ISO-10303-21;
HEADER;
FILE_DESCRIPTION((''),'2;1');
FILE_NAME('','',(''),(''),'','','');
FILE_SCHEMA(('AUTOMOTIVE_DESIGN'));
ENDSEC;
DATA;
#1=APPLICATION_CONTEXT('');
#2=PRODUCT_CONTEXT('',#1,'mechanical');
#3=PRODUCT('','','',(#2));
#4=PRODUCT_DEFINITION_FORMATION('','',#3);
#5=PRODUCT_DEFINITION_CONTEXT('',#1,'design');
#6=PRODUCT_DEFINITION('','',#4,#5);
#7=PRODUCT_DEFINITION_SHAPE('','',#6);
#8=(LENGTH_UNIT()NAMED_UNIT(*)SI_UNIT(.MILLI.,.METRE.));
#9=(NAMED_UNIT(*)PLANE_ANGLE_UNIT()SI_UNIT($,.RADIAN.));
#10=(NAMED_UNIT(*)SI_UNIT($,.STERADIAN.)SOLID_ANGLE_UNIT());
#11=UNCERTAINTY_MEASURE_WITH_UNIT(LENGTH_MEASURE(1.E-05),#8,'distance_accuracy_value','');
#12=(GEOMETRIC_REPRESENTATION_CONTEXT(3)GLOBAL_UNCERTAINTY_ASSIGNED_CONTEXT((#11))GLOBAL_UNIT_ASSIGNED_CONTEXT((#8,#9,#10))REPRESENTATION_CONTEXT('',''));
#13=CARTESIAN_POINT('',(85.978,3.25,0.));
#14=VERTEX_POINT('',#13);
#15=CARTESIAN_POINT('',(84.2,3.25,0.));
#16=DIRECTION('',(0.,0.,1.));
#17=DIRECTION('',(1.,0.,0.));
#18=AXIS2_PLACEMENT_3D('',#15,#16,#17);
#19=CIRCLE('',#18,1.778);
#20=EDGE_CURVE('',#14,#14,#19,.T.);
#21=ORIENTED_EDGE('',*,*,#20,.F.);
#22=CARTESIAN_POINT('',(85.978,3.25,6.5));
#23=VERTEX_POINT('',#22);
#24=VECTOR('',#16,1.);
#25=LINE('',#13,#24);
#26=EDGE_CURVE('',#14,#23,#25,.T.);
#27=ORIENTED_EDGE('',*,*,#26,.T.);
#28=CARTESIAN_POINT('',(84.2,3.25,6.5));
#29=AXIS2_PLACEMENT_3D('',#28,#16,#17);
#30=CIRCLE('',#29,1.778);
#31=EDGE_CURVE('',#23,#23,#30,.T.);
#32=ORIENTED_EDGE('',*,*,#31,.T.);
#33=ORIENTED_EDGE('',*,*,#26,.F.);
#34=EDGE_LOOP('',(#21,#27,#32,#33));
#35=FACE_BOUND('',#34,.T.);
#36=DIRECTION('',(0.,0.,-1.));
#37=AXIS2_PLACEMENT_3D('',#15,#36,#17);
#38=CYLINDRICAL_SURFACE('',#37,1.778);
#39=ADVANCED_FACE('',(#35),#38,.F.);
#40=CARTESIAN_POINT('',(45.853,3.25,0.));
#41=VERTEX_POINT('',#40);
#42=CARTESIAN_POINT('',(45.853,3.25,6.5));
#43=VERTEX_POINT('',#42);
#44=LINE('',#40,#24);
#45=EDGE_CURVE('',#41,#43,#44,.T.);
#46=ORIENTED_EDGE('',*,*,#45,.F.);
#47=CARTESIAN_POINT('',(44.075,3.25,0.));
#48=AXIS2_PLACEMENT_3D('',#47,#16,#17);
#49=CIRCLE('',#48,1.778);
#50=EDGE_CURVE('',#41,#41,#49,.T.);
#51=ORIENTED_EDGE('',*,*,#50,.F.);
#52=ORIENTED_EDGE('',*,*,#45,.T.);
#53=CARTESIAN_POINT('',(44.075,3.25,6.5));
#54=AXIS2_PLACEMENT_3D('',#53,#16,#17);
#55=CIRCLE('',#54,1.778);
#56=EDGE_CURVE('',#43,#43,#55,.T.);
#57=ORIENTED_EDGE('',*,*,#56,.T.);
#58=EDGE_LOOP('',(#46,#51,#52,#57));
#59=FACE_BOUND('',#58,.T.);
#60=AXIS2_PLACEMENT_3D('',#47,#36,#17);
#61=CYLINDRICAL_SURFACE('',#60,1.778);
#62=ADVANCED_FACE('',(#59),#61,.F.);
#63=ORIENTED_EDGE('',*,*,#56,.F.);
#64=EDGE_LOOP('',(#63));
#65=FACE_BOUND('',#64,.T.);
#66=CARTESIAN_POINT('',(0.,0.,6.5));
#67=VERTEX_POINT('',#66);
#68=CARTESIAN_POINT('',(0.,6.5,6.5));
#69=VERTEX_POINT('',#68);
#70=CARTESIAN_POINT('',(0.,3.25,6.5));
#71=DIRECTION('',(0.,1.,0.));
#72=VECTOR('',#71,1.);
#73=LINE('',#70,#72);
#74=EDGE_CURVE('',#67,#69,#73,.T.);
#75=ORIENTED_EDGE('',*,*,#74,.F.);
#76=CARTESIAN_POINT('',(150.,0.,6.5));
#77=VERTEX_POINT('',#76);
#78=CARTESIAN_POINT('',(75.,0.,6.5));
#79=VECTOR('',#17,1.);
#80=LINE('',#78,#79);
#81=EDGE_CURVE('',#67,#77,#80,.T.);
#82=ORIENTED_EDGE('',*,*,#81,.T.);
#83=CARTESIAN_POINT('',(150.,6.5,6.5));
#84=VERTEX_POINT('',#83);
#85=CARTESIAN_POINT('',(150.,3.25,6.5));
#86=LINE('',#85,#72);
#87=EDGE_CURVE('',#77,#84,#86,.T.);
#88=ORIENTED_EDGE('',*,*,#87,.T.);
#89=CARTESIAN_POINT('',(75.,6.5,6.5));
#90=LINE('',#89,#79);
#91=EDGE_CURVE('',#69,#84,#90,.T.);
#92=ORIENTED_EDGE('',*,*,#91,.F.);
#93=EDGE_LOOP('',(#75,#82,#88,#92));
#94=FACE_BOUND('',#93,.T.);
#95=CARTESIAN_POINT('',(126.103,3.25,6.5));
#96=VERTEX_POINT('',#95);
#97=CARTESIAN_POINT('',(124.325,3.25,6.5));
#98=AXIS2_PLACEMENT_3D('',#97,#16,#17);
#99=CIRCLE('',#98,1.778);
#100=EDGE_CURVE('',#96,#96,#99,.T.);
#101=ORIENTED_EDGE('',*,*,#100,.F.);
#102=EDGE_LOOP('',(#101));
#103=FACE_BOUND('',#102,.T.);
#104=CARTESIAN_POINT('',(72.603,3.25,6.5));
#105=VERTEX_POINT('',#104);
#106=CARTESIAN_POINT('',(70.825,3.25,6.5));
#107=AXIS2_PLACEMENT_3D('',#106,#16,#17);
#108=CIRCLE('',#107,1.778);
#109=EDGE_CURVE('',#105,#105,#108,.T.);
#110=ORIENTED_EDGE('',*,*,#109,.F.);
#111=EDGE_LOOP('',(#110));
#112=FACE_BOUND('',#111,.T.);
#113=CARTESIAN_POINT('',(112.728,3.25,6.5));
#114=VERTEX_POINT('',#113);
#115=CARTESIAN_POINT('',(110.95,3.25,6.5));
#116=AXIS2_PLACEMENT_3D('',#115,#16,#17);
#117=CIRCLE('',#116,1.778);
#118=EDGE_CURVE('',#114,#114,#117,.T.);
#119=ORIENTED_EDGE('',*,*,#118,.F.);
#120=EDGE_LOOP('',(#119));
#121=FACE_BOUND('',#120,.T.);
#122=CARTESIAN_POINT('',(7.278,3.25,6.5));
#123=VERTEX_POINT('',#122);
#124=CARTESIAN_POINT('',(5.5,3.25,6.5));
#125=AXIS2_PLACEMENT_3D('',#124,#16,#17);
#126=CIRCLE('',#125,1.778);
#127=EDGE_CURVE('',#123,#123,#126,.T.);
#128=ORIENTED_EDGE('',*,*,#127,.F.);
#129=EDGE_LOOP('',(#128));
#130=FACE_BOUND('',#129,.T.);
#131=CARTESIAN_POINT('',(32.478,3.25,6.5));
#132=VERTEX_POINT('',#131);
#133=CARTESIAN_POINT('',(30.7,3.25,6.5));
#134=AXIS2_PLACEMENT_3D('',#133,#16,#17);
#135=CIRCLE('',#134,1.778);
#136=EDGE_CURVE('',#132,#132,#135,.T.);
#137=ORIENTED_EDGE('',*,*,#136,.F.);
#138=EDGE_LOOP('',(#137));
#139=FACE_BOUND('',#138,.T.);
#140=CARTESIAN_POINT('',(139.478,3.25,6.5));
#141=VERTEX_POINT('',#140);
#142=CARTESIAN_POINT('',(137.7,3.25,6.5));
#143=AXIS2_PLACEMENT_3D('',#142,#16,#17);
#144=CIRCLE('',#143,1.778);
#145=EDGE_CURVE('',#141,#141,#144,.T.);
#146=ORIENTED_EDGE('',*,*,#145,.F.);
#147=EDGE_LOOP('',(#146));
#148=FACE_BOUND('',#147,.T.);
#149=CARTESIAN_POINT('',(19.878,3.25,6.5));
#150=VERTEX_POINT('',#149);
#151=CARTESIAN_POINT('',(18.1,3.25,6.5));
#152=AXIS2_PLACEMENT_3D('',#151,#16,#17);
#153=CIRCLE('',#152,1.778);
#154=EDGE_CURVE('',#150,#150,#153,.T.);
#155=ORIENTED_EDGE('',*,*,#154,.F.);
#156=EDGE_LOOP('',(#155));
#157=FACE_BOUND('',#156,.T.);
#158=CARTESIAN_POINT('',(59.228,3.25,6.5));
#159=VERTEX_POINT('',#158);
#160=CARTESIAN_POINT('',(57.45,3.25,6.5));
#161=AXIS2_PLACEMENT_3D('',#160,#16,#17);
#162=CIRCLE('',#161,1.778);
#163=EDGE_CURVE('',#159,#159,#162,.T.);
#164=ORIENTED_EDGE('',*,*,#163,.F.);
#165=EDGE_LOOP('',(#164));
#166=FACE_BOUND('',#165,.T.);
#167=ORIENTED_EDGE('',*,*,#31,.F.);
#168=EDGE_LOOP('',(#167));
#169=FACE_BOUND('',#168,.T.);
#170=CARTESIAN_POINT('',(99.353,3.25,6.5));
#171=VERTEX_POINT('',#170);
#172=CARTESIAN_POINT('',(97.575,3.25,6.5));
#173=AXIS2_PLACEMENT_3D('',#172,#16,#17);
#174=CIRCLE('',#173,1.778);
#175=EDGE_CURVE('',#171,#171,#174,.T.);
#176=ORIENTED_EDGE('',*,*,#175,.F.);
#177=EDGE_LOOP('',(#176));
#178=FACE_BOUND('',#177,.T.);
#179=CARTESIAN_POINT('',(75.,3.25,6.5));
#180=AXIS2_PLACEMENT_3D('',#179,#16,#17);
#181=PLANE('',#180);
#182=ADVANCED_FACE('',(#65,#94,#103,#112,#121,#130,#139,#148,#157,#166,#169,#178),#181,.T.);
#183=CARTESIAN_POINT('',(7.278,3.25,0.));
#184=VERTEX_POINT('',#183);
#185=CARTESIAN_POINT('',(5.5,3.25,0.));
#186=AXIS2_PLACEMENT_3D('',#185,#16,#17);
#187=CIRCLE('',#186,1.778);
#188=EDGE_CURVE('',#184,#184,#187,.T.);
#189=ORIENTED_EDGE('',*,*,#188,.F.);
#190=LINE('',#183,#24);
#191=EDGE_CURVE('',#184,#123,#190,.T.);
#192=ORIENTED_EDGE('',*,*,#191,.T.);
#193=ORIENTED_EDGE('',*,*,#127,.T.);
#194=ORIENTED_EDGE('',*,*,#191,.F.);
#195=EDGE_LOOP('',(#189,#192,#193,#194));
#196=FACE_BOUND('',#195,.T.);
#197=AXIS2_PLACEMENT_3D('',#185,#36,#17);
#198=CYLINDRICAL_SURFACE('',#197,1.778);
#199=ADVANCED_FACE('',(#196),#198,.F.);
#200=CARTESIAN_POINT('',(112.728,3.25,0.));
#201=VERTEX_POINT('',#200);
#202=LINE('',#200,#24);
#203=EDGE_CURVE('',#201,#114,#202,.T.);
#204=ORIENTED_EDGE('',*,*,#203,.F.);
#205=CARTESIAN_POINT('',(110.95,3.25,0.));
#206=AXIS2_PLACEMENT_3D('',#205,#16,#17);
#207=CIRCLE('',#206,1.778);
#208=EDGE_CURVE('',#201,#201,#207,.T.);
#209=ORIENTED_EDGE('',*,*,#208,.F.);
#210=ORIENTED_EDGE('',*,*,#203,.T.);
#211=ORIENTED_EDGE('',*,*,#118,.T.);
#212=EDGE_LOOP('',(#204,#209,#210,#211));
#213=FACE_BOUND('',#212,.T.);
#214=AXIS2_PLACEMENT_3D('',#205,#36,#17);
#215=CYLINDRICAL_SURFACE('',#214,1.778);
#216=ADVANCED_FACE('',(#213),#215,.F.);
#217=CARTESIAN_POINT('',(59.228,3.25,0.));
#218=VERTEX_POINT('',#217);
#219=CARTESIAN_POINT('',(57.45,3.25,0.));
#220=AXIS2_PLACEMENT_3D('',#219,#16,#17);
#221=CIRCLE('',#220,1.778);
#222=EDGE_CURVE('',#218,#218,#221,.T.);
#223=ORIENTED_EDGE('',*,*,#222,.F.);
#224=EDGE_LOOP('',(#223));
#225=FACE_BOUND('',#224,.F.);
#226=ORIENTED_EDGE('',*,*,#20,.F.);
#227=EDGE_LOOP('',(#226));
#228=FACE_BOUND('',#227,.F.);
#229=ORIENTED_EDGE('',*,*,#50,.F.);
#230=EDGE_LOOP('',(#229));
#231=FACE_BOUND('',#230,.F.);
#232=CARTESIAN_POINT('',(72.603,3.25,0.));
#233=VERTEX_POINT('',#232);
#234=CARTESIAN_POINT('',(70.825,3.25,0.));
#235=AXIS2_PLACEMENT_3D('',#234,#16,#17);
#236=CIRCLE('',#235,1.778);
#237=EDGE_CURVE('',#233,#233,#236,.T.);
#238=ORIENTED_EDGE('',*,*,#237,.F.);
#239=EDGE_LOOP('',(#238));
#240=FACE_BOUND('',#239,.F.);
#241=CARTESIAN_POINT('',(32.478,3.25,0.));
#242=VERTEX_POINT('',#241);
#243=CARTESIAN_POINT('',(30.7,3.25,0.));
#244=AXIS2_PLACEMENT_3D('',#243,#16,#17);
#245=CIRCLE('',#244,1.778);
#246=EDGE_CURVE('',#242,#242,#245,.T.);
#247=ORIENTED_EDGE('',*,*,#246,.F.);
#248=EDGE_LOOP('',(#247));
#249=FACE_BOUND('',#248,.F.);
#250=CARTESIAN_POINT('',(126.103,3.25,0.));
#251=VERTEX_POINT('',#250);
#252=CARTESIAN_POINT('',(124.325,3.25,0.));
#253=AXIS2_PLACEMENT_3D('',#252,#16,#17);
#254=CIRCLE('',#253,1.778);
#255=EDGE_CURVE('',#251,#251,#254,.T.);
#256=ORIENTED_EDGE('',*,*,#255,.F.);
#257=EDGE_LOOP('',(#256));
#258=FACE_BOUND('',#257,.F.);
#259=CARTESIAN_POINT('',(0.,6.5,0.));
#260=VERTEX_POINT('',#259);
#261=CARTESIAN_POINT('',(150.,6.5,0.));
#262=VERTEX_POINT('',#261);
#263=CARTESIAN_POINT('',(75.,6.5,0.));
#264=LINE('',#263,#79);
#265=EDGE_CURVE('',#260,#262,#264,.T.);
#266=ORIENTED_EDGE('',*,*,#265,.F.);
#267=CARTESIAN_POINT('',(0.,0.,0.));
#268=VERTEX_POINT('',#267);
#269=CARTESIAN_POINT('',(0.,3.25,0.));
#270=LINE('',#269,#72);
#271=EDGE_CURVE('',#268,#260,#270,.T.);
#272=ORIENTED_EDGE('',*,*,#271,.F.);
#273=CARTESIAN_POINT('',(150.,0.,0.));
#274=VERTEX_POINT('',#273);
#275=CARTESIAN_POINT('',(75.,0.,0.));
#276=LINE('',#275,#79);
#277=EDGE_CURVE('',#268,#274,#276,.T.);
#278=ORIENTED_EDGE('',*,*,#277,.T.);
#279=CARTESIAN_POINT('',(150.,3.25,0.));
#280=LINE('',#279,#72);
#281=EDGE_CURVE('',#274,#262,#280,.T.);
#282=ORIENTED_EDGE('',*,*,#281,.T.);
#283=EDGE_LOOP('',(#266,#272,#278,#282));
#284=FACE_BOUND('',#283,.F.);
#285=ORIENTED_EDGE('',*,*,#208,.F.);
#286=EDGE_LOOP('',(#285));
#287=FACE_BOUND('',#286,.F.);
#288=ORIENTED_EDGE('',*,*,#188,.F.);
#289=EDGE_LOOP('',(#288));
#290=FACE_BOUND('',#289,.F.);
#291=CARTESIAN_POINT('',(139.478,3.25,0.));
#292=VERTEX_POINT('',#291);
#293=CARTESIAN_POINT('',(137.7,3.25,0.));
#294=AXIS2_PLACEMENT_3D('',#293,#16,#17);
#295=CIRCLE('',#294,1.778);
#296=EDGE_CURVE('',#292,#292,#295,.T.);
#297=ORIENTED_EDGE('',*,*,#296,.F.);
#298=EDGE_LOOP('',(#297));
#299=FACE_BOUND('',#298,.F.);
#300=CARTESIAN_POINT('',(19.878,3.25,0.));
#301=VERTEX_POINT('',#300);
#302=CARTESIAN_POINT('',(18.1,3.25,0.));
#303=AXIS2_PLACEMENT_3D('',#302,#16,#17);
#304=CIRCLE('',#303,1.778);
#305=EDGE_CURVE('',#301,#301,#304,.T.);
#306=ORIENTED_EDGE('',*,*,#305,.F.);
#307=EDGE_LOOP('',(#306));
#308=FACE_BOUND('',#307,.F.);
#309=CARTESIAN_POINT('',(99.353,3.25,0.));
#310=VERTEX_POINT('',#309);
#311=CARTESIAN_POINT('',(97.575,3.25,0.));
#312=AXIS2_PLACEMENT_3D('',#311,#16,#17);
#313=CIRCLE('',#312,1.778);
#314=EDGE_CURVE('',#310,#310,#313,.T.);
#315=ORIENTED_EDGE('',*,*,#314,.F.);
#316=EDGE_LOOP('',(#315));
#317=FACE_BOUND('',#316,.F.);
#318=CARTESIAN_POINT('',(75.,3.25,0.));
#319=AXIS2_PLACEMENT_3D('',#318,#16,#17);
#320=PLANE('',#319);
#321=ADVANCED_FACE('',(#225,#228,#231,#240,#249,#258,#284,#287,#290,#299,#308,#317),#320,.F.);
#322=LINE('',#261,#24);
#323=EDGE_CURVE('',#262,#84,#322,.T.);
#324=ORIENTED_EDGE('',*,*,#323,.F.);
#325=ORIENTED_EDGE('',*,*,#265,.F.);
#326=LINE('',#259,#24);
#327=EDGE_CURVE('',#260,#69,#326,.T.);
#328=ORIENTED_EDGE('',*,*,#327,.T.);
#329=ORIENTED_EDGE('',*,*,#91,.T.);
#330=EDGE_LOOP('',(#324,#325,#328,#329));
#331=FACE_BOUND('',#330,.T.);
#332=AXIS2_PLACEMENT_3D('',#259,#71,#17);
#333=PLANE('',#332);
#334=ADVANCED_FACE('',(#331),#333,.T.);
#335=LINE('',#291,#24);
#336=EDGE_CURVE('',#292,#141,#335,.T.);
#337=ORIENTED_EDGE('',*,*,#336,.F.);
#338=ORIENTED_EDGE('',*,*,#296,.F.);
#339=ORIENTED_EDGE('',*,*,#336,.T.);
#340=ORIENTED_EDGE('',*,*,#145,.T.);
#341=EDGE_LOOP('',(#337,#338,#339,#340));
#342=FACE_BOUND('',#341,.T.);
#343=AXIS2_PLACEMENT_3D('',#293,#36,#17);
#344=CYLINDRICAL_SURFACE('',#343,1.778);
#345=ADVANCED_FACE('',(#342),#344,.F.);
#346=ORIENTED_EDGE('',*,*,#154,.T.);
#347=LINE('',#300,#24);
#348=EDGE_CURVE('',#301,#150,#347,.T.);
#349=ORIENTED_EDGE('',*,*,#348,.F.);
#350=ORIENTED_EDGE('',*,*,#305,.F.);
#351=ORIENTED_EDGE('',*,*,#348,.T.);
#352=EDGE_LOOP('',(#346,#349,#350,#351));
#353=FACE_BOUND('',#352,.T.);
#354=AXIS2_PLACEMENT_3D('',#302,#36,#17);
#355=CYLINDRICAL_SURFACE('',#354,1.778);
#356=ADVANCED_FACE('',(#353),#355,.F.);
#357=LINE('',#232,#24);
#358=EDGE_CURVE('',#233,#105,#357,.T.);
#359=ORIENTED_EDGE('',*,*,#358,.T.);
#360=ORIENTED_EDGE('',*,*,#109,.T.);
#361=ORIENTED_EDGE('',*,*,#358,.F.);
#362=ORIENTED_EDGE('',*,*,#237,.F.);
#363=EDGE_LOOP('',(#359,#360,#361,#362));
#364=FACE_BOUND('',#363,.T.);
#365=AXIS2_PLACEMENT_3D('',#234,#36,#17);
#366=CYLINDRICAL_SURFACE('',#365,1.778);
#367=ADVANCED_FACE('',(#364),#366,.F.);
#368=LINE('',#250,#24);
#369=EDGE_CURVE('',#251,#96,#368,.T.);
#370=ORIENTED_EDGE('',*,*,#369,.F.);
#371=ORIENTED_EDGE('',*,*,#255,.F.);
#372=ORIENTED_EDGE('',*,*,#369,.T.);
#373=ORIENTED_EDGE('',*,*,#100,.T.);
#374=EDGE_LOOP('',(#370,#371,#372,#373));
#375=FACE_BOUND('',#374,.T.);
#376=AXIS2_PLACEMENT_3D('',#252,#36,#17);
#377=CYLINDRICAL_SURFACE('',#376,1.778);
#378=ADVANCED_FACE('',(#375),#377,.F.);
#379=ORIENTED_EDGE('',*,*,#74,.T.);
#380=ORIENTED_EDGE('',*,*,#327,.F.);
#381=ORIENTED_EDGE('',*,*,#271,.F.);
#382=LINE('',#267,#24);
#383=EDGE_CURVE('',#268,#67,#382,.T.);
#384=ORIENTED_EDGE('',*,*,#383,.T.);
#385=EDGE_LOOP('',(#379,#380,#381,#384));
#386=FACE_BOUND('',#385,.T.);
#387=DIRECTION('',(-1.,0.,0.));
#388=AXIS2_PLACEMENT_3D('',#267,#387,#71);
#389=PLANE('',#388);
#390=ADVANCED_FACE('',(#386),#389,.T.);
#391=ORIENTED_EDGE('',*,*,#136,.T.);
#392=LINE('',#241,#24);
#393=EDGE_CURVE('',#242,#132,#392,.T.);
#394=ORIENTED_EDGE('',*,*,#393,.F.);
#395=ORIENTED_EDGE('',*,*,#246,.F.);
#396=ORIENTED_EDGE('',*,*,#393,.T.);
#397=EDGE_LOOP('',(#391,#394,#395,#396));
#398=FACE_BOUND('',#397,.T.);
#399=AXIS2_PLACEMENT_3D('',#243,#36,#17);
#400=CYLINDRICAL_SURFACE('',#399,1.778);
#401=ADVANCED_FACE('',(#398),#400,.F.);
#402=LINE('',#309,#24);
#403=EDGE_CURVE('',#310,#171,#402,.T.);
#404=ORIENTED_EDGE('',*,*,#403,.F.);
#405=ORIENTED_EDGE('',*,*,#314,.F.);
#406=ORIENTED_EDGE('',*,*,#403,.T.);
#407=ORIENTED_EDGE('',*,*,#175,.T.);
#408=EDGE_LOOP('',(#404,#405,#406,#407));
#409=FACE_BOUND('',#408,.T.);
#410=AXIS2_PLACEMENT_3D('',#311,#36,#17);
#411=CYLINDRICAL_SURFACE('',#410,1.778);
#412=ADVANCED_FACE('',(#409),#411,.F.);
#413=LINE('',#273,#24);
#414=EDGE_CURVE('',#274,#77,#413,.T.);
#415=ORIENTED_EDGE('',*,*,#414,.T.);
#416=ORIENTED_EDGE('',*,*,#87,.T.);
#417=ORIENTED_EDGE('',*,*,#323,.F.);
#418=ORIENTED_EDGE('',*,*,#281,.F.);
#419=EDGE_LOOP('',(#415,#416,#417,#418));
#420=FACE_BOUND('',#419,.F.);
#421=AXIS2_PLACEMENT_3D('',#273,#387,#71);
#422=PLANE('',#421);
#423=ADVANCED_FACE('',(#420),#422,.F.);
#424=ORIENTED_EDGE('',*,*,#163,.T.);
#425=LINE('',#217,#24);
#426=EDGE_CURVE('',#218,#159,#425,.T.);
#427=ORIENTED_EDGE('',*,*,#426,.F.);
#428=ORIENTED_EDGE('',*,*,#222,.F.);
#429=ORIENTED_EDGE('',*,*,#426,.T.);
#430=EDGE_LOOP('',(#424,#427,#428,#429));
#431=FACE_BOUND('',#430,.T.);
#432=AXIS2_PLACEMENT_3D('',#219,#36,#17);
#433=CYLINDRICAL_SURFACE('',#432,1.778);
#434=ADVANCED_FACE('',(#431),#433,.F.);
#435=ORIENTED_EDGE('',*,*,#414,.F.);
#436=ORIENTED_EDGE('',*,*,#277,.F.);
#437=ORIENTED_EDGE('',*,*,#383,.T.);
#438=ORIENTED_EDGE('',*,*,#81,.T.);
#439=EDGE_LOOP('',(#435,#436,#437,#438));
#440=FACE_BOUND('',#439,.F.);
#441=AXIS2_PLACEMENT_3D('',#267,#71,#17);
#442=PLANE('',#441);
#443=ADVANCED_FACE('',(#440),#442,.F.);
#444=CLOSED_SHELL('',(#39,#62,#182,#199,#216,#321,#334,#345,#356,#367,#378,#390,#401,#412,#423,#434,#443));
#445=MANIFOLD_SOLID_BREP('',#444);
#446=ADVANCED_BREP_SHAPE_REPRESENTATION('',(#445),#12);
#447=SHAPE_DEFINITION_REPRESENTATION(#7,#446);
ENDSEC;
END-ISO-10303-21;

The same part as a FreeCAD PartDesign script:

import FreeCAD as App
import Part
import Sketcher

V = App.Vector


def add_polygon(sketch, points):
    """Adds a closed chain of lines whose ends are joined by coincident constraints."""
    first, n = sketch.GeometryCount, len(points)
    for a, b in zip(points, points[1:] + points[:1]):
        sketch.addGeometry(Part.LineSegment(App.Vector(*a, 0), App.Vector(*b, 0)), False)
    for i in range(n):
        sketch.addConstraint(Sketcher.Constraint("Coincident", first + i, 2, first + (i + 1) % n, 1))

doc = App.newDocument("Part")
body = doc.addObject("PartDesign::Body", "Body")

sketch1 = body.newObject("Sketcher::SketchObject", "Sketch")
sketch1.AttachmentSupport = (doc.getObject("XY_Plane"), [""])
sketch1.MapMode = "FlatFace"
add_polygon(sketch1, [(0, 6.5), (0, 0), (150, 0), (150, 6.5)])
sketch1.addGeometry(Part.Circle(V(5.5, 3.2, 0), V(0, 0, 1), 1.8), False)
sketch1.addGeometry(Part.Circle(V(18.1, 3.2, 0), V(0, 0, 1), 1.8), False)
sketch1.addGeometry(Part.Circle(V(30.7, 3.2, 0), V(0, 0, 1), 1.8), False)
sketch1.addGeometry(Part.Circle(V(44.1, 3.2, 0), V(0, 0, 1), 1.8), False)
sketch1.addGeometry(Part.Circle(V(57.5, 3.2, 0), V(0, 0, 1), 1.8), False)
sketch1.addGeometry(Part.Circle(V(70.8, 3.2, 0), V(0, 0, 1), 1.8), False)
sketch1.addGeometry(Part.Circle(V(84.2, 3.2, 0), V(0, 0, 1), 1.8), False)
sketch1.addGeometry(Part.Circle(V(97.6, 3.2, 0), V(0, 0, 1), 1.8), False)
sketch1.addGeometry(Part.Circle(V(111, 3.2, 0), V(0, 0, 1), 1.8), False)
sketch1.addGeometry(Part.Circle(V(124.3, 3.2, 0), V(0, 0, 1), 1.8), False)
sketch1.addGeometry(Part.Circle(V(137.7, 3.2, 0), V(0, 0, 1), 1.8), False)
sketch1.addConstraint([
    Sketcher.Constraint("Vertical", 0),
    Sketcher.Constraint("Horizontal", 1),
    Sketcher.Constraint("Vertical", 2),
    Sketcher.Constraint("Horizontal", 3),
    Sketcher.Constraint("Coincident", 0, 2, -1, 1),
    Sketcher.Constraint("Equal", 4, 5),
    Sketcher.Constraint("Equal", 5, 6),
    Sketcher.Constraint("Equal", 6, 7),
    Sketcher.Constraint("Equal", 7, 8),
    Sketcher.Constraint("Equal", 8, 9),
    Sketcher.Constraint("Equal", 9, 10),
    Sketcher.Constraint("Equal", 10, 11),
    Sketcher.Constraint("Equal", 11, 12),
    Sketcher.Constraint("Equal", 12, 13),
    Sketcher.Constraint("Equal", 13, 14),
    Sketcher.Constraint("Horizontal", 4, 3, 5, 3),
    Sketcher.Constraint("Horizontal", 5, 3, 6, 3),
    Sketcher.Constraint("Horizontal", 6, 3, 7, 3),
    Sketcher.Constraint("Horizontal", 7, 3, 8, 3),
    Sketcher.Constraint("Horizontal", 8, 3, 9, 3),
    Sketcher.Constraint("Horizontal", 9, 3, 10, 3),
    Sketcher.Constraint("Horizontal", 10, 3, 11, 3),
    Sketcher.Constraint("Horizontal", 11, 3, 12, 3),
    Sketcher.Constraint("Horizontal", 12, 3, 13, 3),
    Sketcher.Constraint("Horizontal", 13, 3, 14, 3),
    Sketcher.Constraint("DistanceX", 1, 1, 1, 2, 150.0),
    Sketcher.Constraint("Diameter", 4, 3.556),
    Sketcher.Constraint("DistanceY", 0, 2, 0, 1, 6.5),
    Sketcher.Constraint("DistanceX", -1, 1, 4, 3, 5.5),
    Sketcher.Constraint("DistanceX", -1, 1, 5, 3, 18.1),
    Sketcher.Constraint("DistanceX", -1, 1, 6, 3, 30.7),
    Sketcher.Constraint("DistanceX", -1, 1, 10, 3, 84.2),
    Sketcher.Constraint("DistanceX", -1, 1, 14, 3, 137.7),
    Sketcher.Constraint("DistanceX", 7, 3, 11, 3, 53.5),
    Sketcher.Constraint("DistanceX", 8, 3, 12, 3, 53.5),
    Sketcher.Constraint("DistanceX", 9, 3, 13, 3, 53.5),
    Sketcher.Constraint("DistanceY", -1, 1, 4, 3, 3.25),
    Sketcher.Constraint("DistanceX", -1, 1, 8, 3, 57.45),
    Sketcher.Constraint("DistanceX", 7, 3, 9, 3, 26.75),
    Sketcher.Constraint("DistanceX", -1, 1, 7, 3, 44.075),
])
pad1 = body.newObject("PartDesign::Pad", "Pad")
pad1.Profile = sketch1
pad1.Length = 6.5

doc.recompute()
